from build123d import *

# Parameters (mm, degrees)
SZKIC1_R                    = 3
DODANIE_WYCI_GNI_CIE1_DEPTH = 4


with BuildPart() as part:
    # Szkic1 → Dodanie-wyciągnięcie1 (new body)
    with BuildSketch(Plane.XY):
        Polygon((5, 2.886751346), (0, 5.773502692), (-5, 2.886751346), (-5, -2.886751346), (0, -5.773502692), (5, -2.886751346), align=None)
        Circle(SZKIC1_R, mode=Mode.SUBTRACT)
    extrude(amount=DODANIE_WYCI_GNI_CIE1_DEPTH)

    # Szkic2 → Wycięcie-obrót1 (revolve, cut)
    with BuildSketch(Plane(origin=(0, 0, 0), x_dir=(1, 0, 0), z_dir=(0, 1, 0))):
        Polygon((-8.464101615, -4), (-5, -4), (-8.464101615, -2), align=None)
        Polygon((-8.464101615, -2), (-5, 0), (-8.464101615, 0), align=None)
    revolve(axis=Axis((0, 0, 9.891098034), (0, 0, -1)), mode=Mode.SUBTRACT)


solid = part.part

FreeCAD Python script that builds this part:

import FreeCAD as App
import Part
import Sketcher
Q = App.Units.Quantity

doc = App.newDocument("Part")
body = doc.addObject("PartDesign::Body", "Body")

# Sketch on XY plane
sketch1 = body.newObject("Sketcher::SketchObject", "Sketch")
sketch1.AttachmentSupport = (doc.getObject("XY_Plane"), [""])
sketch1.MapMode = "FlatFace"
sketch1.addGeometry([
    Part.LineSegment(App.Vector(5, 2.886751, 0), App.Vector(0, 5.773503, 0)),  # 0
    Part.LineSegment(App.Vector(0, 5.773503, 0), App.Vector(-5, 2.886751, 0)),  # 1
    Part.LineSegment(App.Vector(-5, 2.886751, 0), App.Vector(-5, -2.886751, 0)),  # 2
    Part.LineSegment(App.Vector(-5, -2.886751, 0), App.Vector(0, -5.773503, 0)),  # 3
    Part.LineSegment(App.Vector(0, -5.773503, 0), App.Vector(5, -2.886751, 0)),  # 4
    Part.LineSegment(App.Vector(5, -2.886751, 0), App.Vector(5, 2.886751, 0)),  # 5
    Part.Circle(App.Vector(0, 0, 0), App.Vector(0, 0, 1), 3),  # 6
], False)
sketch1.addConstraint([
    Sketcher.Constraint("Coincident", 0, 2, 1, 1),
    Sketcher.Constraint("Coincident", 1, 2, 2, 1),
    Sketcher.Constraint("Coincident", 2, 2, 3, 1),
    Sketcher.Constraint("Coincident", 3, 2, 4, 1),
    Sketcher.Constraint("Coincident", 4, 2, 5, 1),
    Sketcher.Constraint("Coincident", 5, 2, 0, 1),
    Sketcher.Constraint("Vertical", 2),
    Sketcher.Constraint("Vertical", 5),
    Sketcher.Constraint("Coincident", 6, 3, -1, 1),
    Sketcher.Constraint("Symmetric", 0, 2, 3, 2, -1, 1),
    Sketcher.Constraint("Symmetric", 1, 2, 4, 2, -1, 1),
    Sketcher.Constraint("PointOnObject", 0, 2, -2),
    Sketcher.Constraint("Parallel", 0, 3),
    Sketcher.Constraint("Horizontal", 2, 2, 4, 2),
    Sketcher.Constraint("Diameter", 6, 6.0),
    Sketcher.Constraint("Angle", 0, Q("150 deg")),
    Sketcher.Constraint("DistanceX", 1, 2, -1, 1, 5.0),
    Sketcher.Constraint("DistanceY", 2, 2, 2, 1, 5.773503),
])
pad1 = body.newObject("PartDesign::Pad", "Pad")
pad1.Profile = sketch1
pad1.Length = 4

# Sketch on XZ plane
sketch2 = body.newObject("Sketcher::SketchObject", "Sketch001")
sketch2.AttachmentSupport = (doc.getObject("XZ_Plane"), [""])
sketch2.MapMode = "FlatFace"
sketch2.addGeometry([
    Part.LineSegment(App.Vector(-8.464102, 4, 0), App.Vector(-5, 4, 0)),  # 0
    Part.LineSegment(App.Vector(-5, 4, 0), App.Vector(-8.464102, 2, 0)),  # 1
    Part.LineSegment(App.Vector(-8.464102, 2, 0), App.Vector(-8.464102, 4, 0)),  # 2
    Part.LineSegment(App.Vector(-8.464102, 2, 0), App.Vector(-5, 0, 0)),  # 3
    Part.LineSegment(App.Vector(-5, 0, 0), App.Vector(-8.464102, 0, 0)),  # 4
    Part.LineSegment(App.Vector(-8.464102, 0, 0), App.Vector(-8.464102, 2, 0)),  # 5
], False)
sketch2.addConstraint([
    Sketcher.Constraint("Coincident", 0, 2, 1, 1),
    Sketcher.Constraint("Coincident", 1, 2, 2, 1),
    Sketcher.Constraint("Coincident", 2, 2, 0, 1),
    Sketcher.Constraint("Coincident", 3, 2, 4, 1),
    Sketcher.Constraint("Coincident", 4, 2, 5, 1),
    Sketcher.Constraint("Coincident", 5, 2, 3, 1),
    Sketcher.Constraint("Horizontal", 0),
    Sketcher.Constraint("Vertical", 2),
    Sketcher.Constraint("Horizontal", 4),
    Sketcher.Constraint("Vertical", 5),
    Sketcher.Constraint("Coincident", 5, 2, 1, 2),
    Sketcher.Constraint("PointOnObject", 3, 2, -1),
    Sketcher.Constraint("Vertical", 0, 2, 3, 2),
    Sketcher.Constraint("Equal", 2, 5),
    Sketcher.Constraint("DistanceY", 2, 1, 2, 2, 2.0),
    Sketcher.Constraint("Angle", 1, Q("-150 deg")),
    Sketcher.Constraint("DistanceX", 0, 2, -1, 1, 5.0),
])
groove = body.newObject("PartDesign::Groove", "Groove")
groove.Profile = sketch2
groove.ReferenceAxis = (sketch2, ["V_Axis"])
groove.Angle = 360

doc.recompute()
